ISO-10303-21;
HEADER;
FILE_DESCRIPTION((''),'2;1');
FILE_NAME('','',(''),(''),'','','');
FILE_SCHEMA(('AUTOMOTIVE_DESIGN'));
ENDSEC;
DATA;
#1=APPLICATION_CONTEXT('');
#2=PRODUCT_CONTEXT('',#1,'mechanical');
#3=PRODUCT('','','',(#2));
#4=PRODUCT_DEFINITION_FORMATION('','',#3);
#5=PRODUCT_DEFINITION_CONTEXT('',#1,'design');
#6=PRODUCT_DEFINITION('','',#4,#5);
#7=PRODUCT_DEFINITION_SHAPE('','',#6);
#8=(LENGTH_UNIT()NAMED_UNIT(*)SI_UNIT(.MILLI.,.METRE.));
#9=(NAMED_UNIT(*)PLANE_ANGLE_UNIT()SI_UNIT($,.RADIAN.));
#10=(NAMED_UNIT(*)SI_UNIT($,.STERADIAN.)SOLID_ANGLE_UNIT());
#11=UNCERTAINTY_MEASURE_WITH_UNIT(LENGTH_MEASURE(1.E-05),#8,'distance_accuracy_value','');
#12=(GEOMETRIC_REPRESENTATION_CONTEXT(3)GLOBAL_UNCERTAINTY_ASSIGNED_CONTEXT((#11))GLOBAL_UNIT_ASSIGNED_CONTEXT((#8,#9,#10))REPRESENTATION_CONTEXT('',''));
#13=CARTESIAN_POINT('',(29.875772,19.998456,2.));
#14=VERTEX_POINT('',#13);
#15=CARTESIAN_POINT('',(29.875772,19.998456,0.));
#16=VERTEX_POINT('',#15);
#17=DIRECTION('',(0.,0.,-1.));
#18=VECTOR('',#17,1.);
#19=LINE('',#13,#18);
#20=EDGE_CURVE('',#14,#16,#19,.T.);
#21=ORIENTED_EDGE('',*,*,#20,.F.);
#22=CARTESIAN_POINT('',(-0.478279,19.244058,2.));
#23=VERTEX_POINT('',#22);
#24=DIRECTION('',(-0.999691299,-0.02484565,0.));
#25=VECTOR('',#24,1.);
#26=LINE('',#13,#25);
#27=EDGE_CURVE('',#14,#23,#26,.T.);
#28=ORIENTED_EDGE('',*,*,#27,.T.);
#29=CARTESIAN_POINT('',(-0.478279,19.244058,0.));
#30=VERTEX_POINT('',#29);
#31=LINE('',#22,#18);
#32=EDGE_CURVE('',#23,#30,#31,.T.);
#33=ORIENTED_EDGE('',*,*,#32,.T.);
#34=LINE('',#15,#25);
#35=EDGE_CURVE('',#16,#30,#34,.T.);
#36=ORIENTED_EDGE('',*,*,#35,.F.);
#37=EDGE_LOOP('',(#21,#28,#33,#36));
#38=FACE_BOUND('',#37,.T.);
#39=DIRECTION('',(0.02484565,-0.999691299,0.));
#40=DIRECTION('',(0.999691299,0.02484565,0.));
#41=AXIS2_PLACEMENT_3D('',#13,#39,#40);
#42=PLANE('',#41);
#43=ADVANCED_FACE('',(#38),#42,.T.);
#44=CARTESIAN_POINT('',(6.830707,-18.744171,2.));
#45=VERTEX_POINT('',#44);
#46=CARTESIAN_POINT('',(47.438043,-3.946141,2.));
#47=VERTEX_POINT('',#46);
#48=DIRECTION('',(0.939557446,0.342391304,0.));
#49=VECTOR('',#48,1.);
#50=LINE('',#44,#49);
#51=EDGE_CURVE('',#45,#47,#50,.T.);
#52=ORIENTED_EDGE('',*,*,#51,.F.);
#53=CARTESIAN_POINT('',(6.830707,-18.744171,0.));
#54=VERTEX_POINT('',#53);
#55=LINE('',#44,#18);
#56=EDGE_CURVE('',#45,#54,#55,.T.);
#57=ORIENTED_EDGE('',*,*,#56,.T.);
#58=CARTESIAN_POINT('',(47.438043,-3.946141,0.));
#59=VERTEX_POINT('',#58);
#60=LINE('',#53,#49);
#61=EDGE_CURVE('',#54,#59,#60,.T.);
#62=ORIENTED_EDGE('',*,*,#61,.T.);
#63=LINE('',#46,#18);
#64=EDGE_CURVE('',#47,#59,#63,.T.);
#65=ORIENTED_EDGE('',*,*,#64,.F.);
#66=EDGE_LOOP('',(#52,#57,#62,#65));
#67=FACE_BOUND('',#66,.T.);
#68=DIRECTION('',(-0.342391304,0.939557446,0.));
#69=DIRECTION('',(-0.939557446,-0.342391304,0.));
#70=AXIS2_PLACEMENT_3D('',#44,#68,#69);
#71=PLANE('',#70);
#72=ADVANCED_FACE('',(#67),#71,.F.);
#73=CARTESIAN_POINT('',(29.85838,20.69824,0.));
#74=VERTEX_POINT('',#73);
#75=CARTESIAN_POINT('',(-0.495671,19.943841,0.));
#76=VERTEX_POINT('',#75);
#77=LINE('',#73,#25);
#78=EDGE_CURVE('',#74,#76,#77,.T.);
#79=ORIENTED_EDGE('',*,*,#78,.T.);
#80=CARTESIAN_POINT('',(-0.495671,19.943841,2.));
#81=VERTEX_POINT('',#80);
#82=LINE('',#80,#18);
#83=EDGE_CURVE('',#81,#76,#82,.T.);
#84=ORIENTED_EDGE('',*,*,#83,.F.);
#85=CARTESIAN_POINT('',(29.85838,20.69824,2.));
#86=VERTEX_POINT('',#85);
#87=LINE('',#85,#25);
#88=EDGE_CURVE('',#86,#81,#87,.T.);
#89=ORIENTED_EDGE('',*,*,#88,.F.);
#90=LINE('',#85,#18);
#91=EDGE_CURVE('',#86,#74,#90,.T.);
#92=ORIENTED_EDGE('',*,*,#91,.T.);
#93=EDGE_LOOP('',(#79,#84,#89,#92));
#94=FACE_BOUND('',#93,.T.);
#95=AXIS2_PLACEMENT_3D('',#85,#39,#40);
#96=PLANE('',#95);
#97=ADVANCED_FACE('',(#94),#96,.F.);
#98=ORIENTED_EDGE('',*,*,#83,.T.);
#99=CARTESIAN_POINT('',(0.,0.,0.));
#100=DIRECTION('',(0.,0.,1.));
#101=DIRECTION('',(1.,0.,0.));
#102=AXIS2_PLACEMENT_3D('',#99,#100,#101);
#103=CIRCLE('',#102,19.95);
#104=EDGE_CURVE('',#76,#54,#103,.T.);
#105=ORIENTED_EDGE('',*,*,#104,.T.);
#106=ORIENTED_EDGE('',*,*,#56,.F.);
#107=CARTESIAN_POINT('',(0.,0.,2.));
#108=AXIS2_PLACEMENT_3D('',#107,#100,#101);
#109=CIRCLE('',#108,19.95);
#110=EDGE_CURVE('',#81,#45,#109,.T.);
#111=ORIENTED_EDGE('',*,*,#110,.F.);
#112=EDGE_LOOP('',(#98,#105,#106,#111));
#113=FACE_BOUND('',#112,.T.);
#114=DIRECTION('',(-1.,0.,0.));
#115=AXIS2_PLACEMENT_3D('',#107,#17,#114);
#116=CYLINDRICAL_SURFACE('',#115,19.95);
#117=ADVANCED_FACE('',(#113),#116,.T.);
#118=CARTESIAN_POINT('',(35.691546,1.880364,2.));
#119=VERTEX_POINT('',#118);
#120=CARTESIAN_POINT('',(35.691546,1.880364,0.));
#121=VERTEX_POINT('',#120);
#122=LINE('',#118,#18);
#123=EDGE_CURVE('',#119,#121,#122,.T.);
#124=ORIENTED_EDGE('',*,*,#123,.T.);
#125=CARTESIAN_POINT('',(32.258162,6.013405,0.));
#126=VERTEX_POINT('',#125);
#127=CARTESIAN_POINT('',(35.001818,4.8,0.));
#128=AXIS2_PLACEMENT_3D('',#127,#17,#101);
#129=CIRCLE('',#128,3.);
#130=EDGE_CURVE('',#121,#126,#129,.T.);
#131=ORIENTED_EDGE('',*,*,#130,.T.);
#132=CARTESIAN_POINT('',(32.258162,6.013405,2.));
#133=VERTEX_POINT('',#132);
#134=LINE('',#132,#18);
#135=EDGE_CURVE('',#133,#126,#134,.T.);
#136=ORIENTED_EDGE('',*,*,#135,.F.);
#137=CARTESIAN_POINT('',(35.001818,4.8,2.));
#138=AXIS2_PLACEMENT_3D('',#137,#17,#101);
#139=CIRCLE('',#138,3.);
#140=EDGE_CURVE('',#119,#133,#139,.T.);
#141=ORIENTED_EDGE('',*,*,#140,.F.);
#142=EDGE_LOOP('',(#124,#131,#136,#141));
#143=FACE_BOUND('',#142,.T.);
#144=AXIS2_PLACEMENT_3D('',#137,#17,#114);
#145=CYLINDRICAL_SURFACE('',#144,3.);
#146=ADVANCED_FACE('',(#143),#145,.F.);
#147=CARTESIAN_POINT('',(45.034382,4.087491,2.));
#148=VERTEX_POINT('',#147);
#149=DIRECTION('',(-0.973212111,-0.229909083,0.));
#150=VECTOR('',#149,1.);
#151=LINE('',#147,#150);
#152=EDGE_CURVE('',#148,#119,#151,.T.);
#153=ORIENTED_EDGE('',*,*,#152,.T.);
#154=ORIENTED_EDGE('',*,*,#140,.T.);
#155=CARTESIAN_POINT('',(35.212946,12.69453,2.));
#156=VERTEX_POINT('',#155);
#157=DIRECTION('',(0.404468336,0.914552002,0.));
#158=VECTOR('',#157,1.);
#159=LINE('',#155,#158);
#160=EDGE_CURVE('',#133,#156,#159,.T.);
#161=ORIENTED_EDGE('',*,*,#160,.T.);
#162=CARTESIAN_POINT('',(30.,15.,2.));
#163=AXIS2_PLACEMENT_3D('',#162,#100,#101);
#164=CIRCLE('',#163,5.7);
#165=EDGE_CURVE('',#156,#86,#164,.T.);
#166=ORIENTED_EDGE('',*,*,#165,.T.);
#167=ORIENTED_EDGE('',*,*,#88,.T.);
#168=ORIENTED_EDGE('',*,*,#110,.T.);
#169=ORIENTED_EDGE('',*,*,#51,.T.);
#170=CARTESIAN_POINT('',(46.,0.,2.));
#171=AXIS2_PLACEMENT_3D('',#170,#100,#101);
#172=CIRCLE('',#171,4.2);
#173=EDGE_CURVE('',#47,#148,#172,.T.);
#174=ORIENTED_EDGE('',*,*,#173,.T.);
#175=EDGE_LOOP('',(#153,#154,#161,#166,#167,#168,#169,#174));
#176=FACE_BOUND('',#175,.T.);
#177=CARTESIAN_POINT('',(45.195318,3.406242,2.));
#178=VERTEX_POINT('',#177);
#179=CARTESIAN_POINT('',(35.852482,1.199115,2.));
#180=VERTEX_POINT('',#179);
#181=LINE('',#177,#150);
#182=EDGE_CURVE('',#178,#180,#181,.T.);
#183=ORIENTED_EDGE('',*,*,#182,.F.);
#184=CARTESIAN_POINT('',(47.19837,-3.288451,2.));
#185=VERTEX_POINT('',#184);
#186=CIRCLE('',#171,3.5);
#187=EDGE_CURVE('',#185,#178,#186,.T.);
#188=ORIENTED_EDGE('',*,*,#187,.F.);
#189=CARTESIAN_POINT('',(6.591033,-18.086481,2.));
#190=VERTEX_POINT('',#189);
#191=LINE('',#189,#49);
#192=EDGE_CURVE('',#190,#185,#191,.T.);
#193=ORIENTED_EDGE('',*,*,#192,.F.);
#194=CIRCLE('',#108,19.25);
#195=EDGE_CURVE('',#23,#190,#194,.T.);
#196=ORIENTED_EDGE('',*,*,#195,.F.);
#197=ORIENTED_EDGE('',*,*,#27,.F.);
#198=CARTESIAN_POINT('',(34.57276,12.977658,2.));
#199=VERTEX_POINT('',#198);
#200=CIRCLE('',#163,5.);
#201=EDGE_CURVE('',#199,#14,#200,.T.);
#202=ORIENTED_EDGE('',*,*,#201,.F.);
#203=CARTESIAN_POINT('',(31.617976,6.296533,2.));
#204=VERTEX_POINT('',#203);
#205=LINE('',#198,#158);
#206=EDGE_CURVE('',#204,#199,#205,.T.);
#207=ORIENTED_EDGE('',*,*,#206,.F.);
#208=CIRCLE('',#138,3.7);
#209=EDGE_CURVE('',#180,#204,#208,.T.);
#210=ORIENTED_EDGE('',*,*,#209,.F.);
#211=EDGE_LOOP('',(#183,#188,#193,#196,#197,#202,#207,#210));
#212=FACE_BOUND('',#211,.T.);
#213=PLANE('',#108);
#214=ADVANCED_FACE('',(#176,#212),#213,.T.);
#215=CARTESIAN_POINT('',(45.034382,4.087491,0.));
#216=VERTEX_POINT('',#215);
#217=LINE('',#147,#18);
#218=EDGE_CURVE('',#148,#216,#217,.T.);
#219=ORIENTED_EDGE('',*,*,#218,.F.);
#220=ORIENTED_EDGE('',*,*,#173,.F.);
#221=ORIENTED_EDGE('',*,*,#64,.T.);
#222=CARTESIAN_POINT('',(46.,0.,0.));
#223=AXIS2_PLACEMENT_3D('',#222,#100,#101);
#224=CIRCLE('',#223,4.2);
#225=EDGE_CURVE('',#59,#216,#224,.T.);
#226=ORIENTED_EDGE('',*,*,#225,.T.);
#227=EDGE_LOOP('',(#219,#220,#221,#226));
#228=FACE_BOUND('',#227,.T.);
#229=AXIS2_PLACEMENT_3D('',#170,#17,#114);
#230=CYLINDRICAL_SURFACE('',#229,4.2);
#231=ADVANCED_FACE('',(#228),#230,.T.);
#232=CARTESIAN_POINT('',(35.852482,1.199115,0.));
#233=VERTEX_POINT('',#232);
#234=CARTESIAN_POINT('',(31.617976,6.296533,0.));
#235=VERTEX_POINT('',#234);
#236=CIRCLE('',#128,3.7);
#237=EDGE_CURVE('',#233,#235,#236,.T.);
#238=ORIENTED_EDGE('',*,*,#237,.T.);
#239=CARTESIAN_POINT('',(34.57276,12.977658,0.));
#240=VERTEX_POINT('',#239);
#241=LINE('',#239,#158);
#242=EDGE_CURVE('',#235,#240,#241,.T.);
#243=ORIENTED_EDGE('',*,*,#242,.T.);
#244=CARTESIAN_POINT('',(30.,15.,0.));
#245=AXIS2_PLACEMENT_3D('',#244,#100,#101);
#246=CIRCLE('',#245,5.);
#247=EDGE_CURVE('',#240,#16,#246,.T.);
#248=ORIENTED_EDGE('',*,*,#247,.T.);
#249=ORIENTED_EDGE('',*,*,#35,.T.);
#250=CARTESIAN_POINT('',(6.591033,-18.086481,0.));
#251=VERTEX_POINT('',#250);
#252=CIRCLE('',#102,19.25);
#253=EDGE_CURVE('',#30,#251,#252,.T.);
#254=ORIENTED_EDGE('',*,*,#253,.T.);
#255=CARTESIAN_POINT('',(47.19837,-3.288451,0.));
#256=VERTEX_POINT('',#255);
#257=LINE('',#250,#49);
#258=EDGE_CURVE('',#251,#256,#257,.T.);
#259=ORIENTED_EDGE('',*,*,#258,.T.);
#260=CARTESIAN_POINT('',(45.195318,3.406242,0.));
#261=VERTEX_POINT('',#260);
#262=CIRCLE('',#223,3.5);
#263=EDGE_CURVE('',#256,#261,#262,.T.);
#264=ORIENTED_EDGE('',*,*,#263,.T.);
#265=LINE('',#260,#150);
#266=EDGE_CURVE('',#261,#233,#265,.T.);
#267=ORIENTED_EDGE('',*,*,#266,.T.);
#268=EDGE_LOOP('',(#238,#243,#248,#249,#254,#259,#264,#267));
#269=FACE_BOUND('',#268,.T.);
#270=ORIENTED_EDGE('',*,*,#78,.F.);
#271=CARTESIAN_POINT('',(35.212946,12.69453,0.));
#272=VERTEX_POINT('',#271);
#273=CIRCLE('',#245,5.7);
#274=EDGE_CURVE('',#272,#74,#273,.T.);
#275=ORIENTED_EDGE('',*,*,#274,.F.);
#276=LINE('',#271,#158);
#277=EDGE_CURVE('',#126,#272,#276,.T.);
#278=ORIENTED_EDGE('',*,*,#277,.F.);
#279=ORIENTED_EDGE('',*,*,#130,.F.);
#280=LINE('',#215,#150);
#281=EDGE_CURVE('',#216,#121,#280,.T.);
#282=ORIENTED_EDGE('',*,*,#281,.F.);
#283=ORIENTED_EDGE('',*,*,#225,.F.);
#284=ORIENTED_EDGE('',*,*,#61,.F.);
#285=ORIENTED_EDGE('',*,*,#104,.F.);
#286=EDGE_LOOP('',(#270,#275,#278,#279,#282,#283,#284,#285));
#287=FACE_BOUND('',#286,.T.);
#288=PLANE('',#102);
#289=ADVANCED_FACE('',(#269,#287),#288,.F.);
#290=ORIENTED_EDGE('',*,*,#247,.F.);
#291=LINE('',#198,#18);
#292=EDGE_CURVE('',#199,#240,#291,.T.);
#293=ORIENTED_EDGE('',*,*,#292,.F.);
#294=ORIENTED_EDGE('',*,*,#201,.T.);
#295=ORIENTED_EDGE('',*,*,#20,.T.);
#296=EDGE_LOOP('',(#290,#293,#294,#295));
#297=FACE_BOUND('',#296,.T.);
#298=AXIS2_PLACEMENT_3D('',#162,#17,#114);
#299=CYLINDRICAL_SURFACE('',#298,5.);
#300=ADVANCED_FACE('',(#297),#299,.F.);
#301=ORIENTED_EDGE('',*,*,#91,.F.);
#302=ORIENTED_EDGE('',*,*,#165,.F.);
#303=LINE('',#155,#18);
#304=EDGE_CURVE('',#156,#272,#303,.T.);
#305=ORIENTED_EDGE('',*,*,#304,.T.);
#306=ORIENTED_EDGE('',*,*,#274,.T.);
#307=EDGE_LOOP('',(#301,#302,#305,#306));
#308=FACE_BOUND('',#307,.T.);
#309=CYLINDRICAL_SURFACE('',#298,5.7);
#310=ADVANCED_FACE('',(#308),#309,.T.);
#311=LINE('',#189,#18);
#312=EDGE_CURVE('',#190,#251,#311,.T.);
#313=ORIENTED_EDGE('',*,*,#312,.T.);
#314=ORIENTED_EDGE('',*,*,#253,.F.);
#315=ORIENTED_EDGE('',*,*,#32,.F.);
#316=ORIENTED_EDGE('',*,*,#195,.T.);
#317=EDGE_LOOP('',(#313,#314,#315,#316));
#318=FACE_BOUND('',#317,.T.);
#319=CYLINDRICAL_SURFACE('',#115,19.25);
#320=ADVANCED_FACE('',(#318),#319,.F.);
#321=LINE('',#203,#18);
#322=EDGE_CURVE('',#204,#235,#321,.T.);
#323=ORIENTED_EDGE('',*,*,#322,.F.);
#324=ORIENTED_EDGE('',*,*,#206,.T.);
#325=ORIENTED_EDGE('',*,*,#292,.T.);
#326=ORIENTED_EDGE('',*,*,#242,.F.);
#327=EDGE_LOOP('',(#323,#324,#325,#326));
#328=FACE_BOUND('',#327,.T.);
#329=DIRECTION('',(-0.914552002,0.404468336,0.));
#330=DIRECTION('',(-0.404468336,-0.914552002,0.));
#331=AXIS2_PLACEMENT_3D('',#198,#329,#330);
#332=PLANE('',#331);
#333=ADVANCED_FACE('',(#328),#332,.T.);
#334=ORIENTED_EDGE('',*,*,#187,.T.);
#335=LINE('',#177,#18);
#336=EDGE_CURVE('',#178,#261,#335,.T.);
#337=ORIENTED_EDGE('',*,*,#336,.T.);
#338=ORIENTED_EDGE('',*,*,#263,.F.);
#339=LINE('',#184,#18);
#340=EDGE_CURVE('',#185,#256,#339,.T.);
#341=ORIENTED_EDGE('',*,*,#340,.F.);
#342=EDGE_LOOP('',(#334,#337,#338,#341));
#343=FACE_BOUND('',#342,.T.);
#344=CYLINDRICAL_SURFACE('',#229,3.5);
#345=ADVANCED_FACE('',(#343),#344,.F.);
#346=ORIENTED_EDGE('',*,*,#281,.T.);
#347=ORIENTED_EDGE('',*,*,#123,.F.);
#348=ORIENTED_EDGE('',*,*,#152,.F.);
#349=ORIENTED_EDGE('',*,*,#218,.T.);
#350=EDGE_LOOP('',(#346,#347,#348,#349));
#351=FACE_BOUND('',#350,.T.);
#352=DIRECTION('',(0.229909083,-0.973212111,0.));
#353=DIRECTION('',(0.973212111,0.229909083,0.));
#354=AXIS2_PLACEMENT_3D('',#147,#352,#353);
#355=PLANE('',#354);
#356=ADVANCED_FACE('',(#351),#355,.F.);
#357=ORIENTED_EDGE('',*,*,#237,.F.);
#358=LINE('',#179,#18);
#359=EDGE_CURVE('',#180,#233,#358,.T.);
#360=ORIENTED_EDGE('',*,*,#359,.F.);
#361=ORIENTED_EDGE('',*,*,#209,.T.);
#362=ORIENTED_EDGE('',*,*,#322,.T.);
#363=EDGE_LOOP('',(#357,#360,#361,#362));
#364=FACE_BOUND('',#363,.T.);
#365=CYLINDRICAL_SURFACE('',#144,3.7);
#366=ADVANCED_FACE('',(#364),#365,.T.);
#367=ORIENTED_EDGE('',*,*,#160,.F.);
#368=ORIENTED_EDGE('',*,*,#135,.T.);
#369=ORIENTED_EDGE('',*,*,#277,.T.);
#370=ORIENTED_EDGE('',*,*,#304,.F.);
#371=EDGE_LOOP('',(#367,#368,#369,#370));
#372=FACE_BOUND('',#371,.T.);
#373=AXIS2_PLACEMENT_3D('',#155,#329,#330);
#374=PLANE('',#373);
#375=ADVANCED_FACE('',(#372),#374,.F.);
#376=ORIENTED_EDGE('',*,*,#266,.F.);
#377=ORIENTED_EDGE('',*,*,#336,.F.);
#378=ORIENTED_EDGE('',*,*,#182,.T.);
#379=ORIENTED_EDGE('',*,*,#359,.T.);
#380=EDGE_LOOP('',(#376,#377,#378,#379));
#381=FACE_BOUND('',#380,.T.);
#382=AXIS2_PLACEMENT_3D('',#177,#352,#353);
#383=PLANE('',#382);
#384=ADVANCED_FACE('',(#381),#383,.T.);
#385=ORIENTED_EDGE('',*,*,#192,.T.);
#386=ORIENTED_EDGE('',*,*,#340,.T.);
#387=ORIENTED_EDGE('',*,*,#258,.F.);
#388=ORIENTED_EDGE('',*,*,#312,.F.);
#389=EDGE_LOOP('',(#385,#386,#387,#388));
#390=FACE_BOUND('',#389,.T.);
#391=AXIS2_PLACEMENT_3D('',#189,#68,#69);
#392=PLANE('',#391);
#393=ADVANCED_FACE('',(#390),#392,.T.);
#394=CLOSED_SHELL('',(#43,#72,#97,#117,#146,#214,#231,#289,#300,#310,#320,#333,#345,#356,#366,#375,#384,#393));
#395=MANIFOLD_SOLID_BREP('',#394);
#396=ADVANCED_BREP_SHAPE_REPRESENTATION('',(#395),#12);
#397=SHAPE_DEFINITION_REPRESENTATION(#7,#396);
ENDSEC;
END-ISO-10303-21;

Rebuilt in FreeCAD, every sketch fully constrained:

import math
import FreeCAD as App
import Part
import Sketcher
from FreeCAD import Vector
Q = App.Units.Quantity

doc = App.newDocument("Part")
body = doc.addObject("PartDesign::Body", "Body")

# Sketch on XY plane
sketch1 = body.newObject("Sketcher::SketchObject", "Sketch")
sketch1.AttachmentSupport = (doc.getObject("XY_Plane"), [""])
sketch1.MapMode = "FlatFace"
sketch1.addGeometry([
    Part.LineSegment(Vector(6.8, -18.7, 0), Vector(47.4, -3.9, 0)),  # 0
    Part.ArcOfCircle(Part.Circle(Vector(46, 0, 0), Vector(0, 0, 1), 4.2), math.radians(-70), math.radians(103)),  # 1
    Part.LineSegment(Vector(45, 4.1, 0), Vector(35.7, 1.9, 0)),  # 2
    Part.ArcOfCircle(Part.Circle(Vector(35, 4.8, 0), Vector(0, 0, 1), 3), math.radians(156), math.radians(283)),  # 3
    Part.LineSegment(Vector(32.3, 6, 0), Vector(35.2, 12.7, 0)),  # 4
    Part.ArcOfCircle(Part.Circle(Vector(30, 15, 0), Vector(0, 0, 1), 5.7), math.radians(-24), math.radians(91)),  # 5
    Part.LineSegment(Vector(29.9, 20.7, 0), Vector(-0.5, 19.9, 0)),  # 6
    Part.ArcOfCircle(Part.Circle(Vector(0, 0, 0), Vector(0, 0, 1), 19.9), math.radians(91), math.radians(290)),  # 7
    Part.LineSegment(Vector(35.9, 1.2, 0), Vector(45.2, 3.4, 0)),  # 8
    Part.ArcOfCircle(Part.Circle(Vector(46, 0, 0), Vector(0, 0, 1), 3.5), math.radians(-70), math.radians(103)),  # 9
    Part.LineSegment(Vector(47.2, -3.3, 0), Vector(6.6, -18.1, 0)),  # 10
    Part.ArcOfCircle(Part.Circle(Vector(0, 0, 0), Vector(0, 0, 1), 19.2), math.radians(91), math.radians(290)),  # 11
    Part.LineSegment(Vector(-0.5, 19.2, 0), Vector(29.9, 20, 0)),  # 12
    Part.ArcOfCircle(Part.Circle(Vector(30, 15, 0), Vector(0, 0, 1), 5), math.radians(-24), math.radians(91)),  # 13
    Part.LineSegment(Vector(34.6, 13, 0), Vector(31.6, 6.3, 0)),  # 14
    Part.ArcOfCircle(Part.Circle(Vector(35, 4.8, 0), Vector(0, 0, 1), 3.7), math.radians(156), math.radians(283)),  # 15
], False)
sketch1.addConstraint([
    Sketcher.Constraint("Tangent", 0, 2, 1, 1),
    Sketcher.Constraint("Tangent", 1, 2, 2, 1),
    Sketcher.Constraint("Tangent", 2, 2, 3, 2),
    Sketcher.Constraint("Tangent", 3, 1, 4, 1),
    Sketcher.Constraint("Tangent", 4, 2, 5, 1),
    Sketcher.Constraint("Tangent", 5, 2, 6, 1),
    Sketcher.Constraint("Tangent", 6, 2, 7, 1),
    Sketcher.Constraint("Tangent", 7, 2, 0, 1),
    Sketcher.Constraint("Tangent", 8, 2, 9, 2),
    Sketcher.Constraint("Tangent", 9, 1, 10, 1),
    Sketcher.Constraint("Tangent", 10, 2, 11, 2),
    Sketcher.Constraint("Tangent", 11, 1, 12, 1),
    Sketcher.Constraint("Tangent", 12, 2, 13, 2),
    Sketcher.Constraint("Tangent", 13, 1, 14, 1),
    Sketcher.Constraint("Tangent", 14, 2, 15, 1),
    Sketcher.Constraint("Tangent", 15, 2, 8, 1),
    Sketcher.Constraint("Coincident", 7, 3, -1, 1),
    Sketcher.Constraint("Coincident", 11, 3, -1, 1),
    Sketcher.Constraint("Coincident", 9, 3, 1, 3),
    Sketcher.Constraint("Coincident", 13, 3, 5, 3),
    Sketcher.Constraint("Coincident", 15, 3, 3, 3),
    Sketcher.Constraint("PointOnObject", 1, 3, -1),
    Sketcher.Constraint("Parallel", 2, 8),
    Sketcher.Constraint("Parallel", 0, 10),
    Sketcher.Constraint("Parallel", 6, 12),
    Sketcher.Constraint("Radius", 3, Q("3 mm")),
    Sketcher.Constraint("Radius", 13, Q("5 mm")),
    Sketcher.Constraint("Radius", 1, Q("4.2 mm")),
    Sketcher.Constraint("Radius", 5, Q("5.7 mm")),
    Sketcher.Constraint("Radius", 7, Q("19.95 mm")),
    Sketcher.Constraint("DistanceX", -1, 1, 1, 3, Q("46 mm")),
    Sketcher.Constraint("DistanceX", -1, 1, 5, 3, Q("30 mm")),
    Sketcher.Constraint("DistanceY", -1, 1, 5, 3, Q("15 mm")),
    Sketcher.Constraint("Distance", 2, Q("9.6 mm")),
    Sketcher.Constraint("DistanceY", -1, 1, 3, 3, Q("4.8 mm")),
])
pad1 = body.newObject("PartDesign::Pad", "Pad")
pad1.Profile = sketch1
pad1.Length = 2

doc.recompute()
